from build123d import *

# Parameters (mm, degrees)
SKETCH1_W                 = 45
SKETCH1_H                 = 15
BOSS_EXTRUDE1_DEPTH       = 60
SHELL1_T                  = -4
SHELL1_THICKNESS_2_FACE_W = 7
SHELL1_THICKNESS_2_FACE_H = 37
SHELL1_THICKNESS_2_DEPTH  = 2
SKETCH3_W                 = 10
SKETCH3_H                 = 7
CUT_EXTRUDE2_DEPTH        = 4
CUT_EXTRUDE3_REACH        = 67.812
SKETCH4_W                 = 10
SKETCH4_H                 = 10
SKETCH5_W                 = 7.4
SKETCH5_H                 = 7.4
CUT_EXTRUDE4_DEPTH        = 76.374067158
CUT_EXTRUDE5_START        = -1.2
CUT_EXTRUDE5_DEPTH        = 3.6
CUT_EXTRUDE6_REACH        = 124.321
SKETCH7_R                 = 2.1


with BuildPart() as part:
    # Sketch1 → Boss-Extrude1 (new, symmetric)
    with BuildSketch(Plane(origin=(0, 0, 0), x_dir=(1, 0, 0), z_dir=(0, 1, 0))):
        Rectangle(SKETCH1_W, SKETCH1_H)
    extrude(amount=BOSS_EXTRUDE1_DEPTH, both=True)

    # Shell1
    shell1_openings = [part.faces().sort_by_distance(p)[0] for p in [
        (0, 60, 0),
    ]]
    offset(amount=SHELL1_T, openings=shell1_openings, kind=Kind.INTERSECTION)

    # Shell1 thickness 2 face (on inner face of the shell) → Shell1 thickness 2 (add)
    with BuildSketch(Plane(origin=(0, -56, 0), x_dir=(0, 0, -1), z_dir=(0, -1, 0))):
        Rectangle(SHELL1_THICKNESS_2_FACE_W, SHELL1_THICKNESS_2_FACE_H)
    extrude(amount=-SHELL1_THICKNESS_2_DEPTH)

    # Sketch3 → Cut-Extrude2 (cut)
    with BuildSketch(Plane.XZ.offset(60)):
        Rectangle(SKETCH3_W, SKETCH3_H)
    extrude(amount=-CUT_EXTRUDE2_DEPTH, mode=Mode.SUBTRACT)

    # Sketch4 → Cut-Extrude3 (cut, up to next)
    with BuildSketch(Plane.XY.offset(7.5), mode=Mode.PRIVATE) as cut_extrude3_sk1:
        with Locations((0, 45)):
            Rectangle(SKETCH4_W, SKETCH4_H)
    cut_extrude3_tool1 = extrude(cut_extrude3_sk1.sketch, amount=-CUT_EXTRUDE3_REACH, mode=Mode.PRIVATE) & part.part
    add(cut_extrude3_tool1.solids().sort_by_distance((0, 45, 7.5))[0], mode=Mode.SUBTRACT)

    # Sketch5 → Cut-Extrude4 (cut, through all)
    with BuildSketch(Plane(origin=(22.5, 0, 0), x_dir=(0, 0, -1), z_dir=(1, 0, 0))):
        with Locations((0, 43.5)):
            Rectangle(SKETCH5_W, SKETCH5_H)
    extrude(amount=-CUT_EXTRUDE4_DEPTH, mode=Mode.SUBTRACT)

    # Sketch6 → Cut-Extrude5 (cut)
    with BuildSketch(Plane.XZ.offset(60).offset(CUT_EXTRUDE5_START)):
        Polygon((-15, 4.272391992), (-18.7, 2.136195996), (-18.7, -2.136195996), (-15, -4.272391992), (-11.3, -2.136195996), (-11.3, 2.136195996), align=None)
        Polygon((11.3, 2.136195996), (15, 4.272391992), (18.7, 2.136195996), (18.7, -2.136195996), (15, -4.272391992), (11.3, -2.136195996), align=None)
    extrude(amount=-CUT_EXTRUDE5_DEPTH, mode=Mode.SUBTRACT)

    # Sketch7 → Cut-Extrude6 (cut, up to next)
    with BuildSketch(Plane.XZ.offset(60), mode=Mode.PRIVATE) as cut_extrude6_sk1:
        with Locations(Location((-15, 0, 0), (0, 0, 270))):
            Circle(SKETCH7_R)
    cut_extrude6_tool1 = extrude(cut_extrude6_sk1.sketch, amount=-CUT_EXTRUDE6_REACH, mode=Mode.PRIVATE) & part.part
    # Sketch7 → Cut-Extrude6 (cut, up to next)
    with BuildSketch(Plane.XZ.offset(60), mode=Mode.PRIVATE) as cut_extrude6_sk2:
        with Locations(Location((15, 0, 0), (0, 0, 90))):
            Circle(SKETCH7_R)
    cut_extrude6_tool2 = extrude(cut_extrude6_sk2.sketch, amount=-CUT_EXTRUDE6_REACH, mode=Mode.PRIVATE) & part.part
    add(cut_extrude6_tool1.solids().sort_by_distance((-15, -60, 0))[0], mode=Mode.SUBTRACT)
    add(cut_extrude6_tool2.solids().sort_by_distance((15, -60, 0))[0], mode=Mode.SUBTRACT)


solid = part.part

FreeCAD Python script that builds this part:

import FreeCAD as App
import Part
import Sketcher
Q = App.Units.Quantity


def faces_at(feature, points):
    """Names of the faces that lie closest to the given points."""
    faces = feature.Shape.Faces
    near = lambda p: min(range(len(faces)), key=lambda i: faces[i].distToShape(Part.Vertex(*p))[0])
    return sorted({f"Face{near(p) + 1}" for p in points})

doc = App.newDocument("Part")
body = doc.addObject("PartDesign::Body", "Body")

# Sketch on XZ plane
sketch1 = doc.addObject("Sketcher::SketchObject", "Sketch")
body.addObject(sketch1)
sketch1.AttachmentSupport = (doc.XZ_Plane, [""])
sketch1.MapMode = "FlatFace"
sketch1.addGeometry(Part.LineSegment(App.Vector(-22, -8, 0), App.Vector(-22, 8, 0)), False)
sketch1.addGeometry(Part.LineSegment(App.Vector(-22, 8, 0), App.Vector(22, 8, 0)), False)
sketch1.addGeometry(Part.LineSegment(App.Vector(22, 8, 0), App.Vector(22, -8, 0)), False)
sketch1.addGeometry(Part.LineSegment(App.Vector(22, -8, 0), App.Vector(-22, -8, 0)), False)
sketch1.addConstraint(Sketcher.Constraint("Coincident", 0, 2, 1, 1))
sketch1.addConstraint(Sketcher.Constraint("Coincident", 1, 2, 2, 1))
sketch1.addConstraint(Sketcher.Constraint("Coincident", 2, 2, 3, 1))
sketch1.addConstraint(Sketcher.Constraint("Coincident", 3, 2, 0, 1))
sketch1.addConstraint(Sketcher.Constraint("Vertical", 0))
sketch1.addConstraint(Sketcher.Constraint("Horizontal", 1))
sketch1.addConstraint(Sketcher.Constraint("Vertical", 2))
sketch1.addConstraint(Sketcher.Constraint("Horizontal", 3))
sketch1.addConstraint(Sketcher.Constraint("Symmetric", 0, 2, 2, 2, -1, 1))
sketch1.addConstraint(Sketcher.Constraint("DistanceX", 1, 1, 1, 2, Q("45 mm")))
sketch1.addConstraint(Sketcher.Constraint("DistanceY", 0, 1, 0, 2, Q("15 mm")))
pad1 = doc.addObject("PartDesign::Pad", "Pad")
body.addObject(pad1)
pad1.Profile = sketch1
pad1.Length = 120
pad1.Midplane = True
doc.recompute()

thickness = doc.addObject("PartDesign::Thickness", "Thickness")
body.addObject(thickness)
thickness.Base = (pad1, faces_at(pad1, [(0, 60, 0)]))
thickness.Value = 4
thickness.Reversed = True
thickness.Join = "Intersection"

# Sketch on XZ plane
sketch2 = doc.addObject("Sketcher::SketchObject", "Sketch001")
body.addObject(sketch2)
sketch2.AttachmentSupport = (doc.XZ_Plane, [""])
sketch2.MapMode = "FlatFace"
sketch2.AttachmentOffset = App.Placement(App.Vector(0, 0, 56), App.Rotation())
sketch2.addGeometry(Part.LineSegment(App.Vector(18, 4, 0), App.Vector(-18, 4, 0)), False)
sketch2.addGeometry(Part.LineSegment(App.Vector(-18, 4, 0), App.Vector(-18, -4, 0)), False)
sketch2.addGeometry(Part.LineSegment(App.Vector(-18, -4, 0), App.Vector(18, -4, 0)), False)
sketch2.addGeometry(Part.LineSegment(App.Vector(18, -4, 0), App.Vector(18, 4, 0)), False)
sketch2.addConstraint(Sketcher.Constraint("Coincident", 0, 2, 1, 1))
sketch2.addConstraint(Sketcher.Constraint("Coincident", 1, 2, 2, 1))
sketch2.addConstraint(Sketcher.Constraint("Coincident", 2, 2, 3, 1))
sketch2.addConstraint(Sketcher.Constraint("Coincident", 3, 2, 0, 1))
sketch2.addConstraint(Sketcher.Constraint("Horizontal", 0))
sketch2.addConstraint(Sketcher.Constraint("Vertical", 1))
sketch2.addConstraint(Sketcher.Constraint("Horizontal", 2))
sketch2.addConstraint(Sketcher.Constraint("Vertical", 3))
sketch2.addConstraint(Sketcher.Constraint("Symmetric", 0, 2, 2, 2, -1, 1))
sketch2.addConstraint(Sketcher.Constraint("DistanceX", 0, 2, 0, 1, Q("37 mm")))
sketch2.addConstraint(Sketcher.Constraint("DistanceY", 1, 2, 1, 1, Q("7 mm")))
pad2 = doc.addObject("PartDesign::Pad", "Pad001")
body.addObject(pad2)
pad2.Profile = sketch2
pad2.Length = 2
pad2.Reversed = True

# Sketch on XZ plane
sketch3 = doc.addObject("Sketcher::SketchObject", "Sketch002")
body.addObject(sketch3)
sketch3.AttachmentSupport = (doc.XZ_Plane, [""])
sketch3.MapMode = "FlatFace"
sketch3.AttachmentOffset = App.Placement(App.Vector(0, 0, 60), App.Rotation())
sketch3.addGeometry(Part.LineSegment(App.Vector(-5, 4, 0), App.Vector(-5, -4, 0)), False)
sketch3.addGeometry(Part.LineSegment(App.Vector(-5, -4, 0), App.Vector(5, -4, 0)), False)
sketch3.addGeometry(Part.LineSegment(App.Vector(5, -4, 0), App.Vector(5, 4, 0)), False)
sketch3.addGeometry(Part.LineSegment(App.Vector(5, 4, 0), App.Vector(-5, 4, 0)), False)
sketch3.addConstraint(Sketcher.Constraint("Coincident", 0, 2, 1, 1))
sketch3.addConstraint(Sketcher.Constraint("Coincident", 1, 2, 2, 1))
sketch3.addConstraint(Sketcher.Constraint("Coincident", 2, 2, 3, 1))
sketch3.addConstraint(Sketcher.Constraint("Coincident", 3, 2, 0, 1))
sketch3.addConstraint(Sketcher.Constraint("Vertical", 0))
sketch3.addConstraint(Sketcher.Constraint("Horizontal", 1))
sketch3.addConstraint(Sketcher.Constraint("Vertical", 2))
sketch3.addConstraint(Sketcher.Constraint("Horizontal", 3))
sketch3.addConstraint(Sketcher.Constraint("Symmetric", 0, 2, 2, 2, -1, 1))
sketch3.addConstraint(Sketcher.Constraint("DistanceX", 1, 1, 1, 2, Q("10 mm")))
sketch3.addConstraint(Sketcher.Constraint("DistanceY", 0, 2, 0, 1, Q("7 mm")))
pocket1 = doc.addObject("PartDesign::Pocket", "Pocket")
body.addObject(pocket1)
pocket1.Profile = sketch3
pocket1.Length = 4

# Sketch on XY plane
sketch4 = doc.addObject("Sketcher::SketchObject", "Sketch003")
body.addObject(sketch4)
sketch4.AttachmentSupport = (doc.XY_Plane, [""])
sketch4.MapMode = "FlatFace"
sketch4.AttachmentOffset = App.Placement(App.Vector(0, 0, 7.5), App.Rotation())
sketch4.addGeometry(Part.LineSegment(App.Vector(-5, 50, 0), App.Vector(-5, 40, 0)), False)
sketch4.addGeometry(Part.LineSegment(App.Vector(-5, 40, 0), App.Vector(5, 40, 0)), False)
sketch4.addGeometry(Part.LineSegment(App.Vector(5, 40, 0), App.Vector(5, 50, 0)), False)
sketch4.addGeometry(Part.LineSegment(App.Vector(5, 50, 0), App.Vector(-5, 50, 0)), False)
sketch4.addConstraint(Sketcher.Constraint("Coincident", 0, 2, 1, 1))
sketch4.addConstraint(Sketcher.Constraint("Coincident", 1, 2, 2, 1))
sketch4.addConstraint(Sketcher.Constraint("Coincident", 2, 2, 3, 1))
sketch4.addConstraint(Sketcher.Constraint("Coincident", 3, 2, 0, 1))
sketch4.addConstraint(Sketcher.Constraint("Vertical", 0))
sketch4.addConstraint(Sketcher.Constraint("Horizontal", 1))
sketch4.addConstraint(Sketcher.Constraint("Vertical", 2))
sketch4.addConstraint(Sketcher.Constraint("Horizontal", 3))
sketch4.addConstraint(Sketcher.Constraint("Equal", 3, 0))
sketch4.addConstraint(Sketcher.Constraint("DistanceX", 1, 1, 1, 2, Q("10 mm")))
sketch4.addConstraint(Sketcher.Constraint("DistanceX", 0, 2, -1, 1, Q("5 mm")))
sketch4.addConstraint(Sketcher.Constraint("DistanceY", -1, 1, 0, 2, Q("40 mm")))
pocket2 = doc.addObject("PartDesign::Pocket", "Pocket001")
body.addObject(pocket2)
pocket2.Profile = sketch4
pocket2.Type = "UpToFirst"

# Sketch on YZ plane
sketch5 = doc.addObject("Sketcher::SketchObject", "Sketch004")
body.addObject(sketch5)
sketch5.AttachmentSupport = (doc.YZ_Plane, [""])
sketch5.MapMode = "FlatFace"
sketch5.AttachmentOffset = App.Placement(App.Vector(0, 0, 22.5), App.Rotation())
sketch5.addGeometry(Part.LineSegment(App.Vector(47, 4, 0), App.Vector(40, 4, 0)), False)
sketch5.addGeometry(Part.LineSegment(App.Vector(40, 4, 0), App.Vector(40, -4, 0)), False)
sketch5.addGeometry(Part.LineSegment(App.Vector(40, -4, 0), App.Vector(47, -4, 0)), False)
sketch5.addGeometry(Part.LineSegment(App.Vector(47, -4, 0), App.Vector(47, 4, 0)), False)
sketch5.addConstraint(Sketcher.Constraint("Coincident", 0, 2, 1, 1))
sketch5.addConstraint(Sketcher.Constraint("Coincident", 1, 2, 2, 1))
sketch5.addConstraint(Sketcher.Constraint("Coincident", 2, 2, 3, 1))
sketch5.addConstraint(Sketcher.Constraint("Coincident", 3, 2, 0, 1))
sketch5.addConstraint(Sketcher.Constraint("Horizontal", 0))
sketch5.addConstraint(Sketcher.Constraint("Vertical", 1))
sketch5.addConstraint(Sketcher.Constraint("Horizontal", 2))
sketch5.addConstraint(Sketcher.Constraint("Vertical", 3))
sketch5.addConstraint(Sketcher.Constraint("Equal", 2, 1))
sketch5.addConstraint(Sketcher.Constraint("DistanceX", 0, 2, 0, 1, Q("7.4 mm")))
sketch5.addConstraint(Sketcher.Constraint("DistanceX", -1, 1, 0, 2, Q("39.8 mm")))
sketch5.addConstraint(Sketcher.Constraint("DistanceY", -1, 1, 0, 2, Q("3.7 mm")))
pocket3 = doc.addObject("PartDesign::Pocket", "Pocket002")
body.addObject(pocket3)
pocket3.Profile = sketch5
pocket3.Type = "ThroughAll"

# Sketch on XZ plane
sketch6 = doc.addObject("Sketcher::SketchObject", "Sketch005")
body.addObject(sketch6)
sketch6.AttachmentSupport = (doc.XZ_Plane, [""])
sketch6.MapMode = "FlatFace"
sketch6.AttachmentOffset = App.Placement(App.Vector(0, 0, 58.8), App.Rotation())
sketch6.addGeometry(Part.LineSegment(App.Vector(-15, 4.3, 0), App.Vector(-18.7, 2.1, 0)), False)
sketch6.addGeometry(Part.LineSegment(App.Vector(-18.7, 2.1, 0), App.Vector(-18.7, -2.1, 0)), False)
sketch6.addGeometry(Part.LineSegment(App.Vector(-18.7, -2.1, 0), App.Vector(-15, -4.3, 0)), False)
sketch6.addGeometry(Part.LineSegment(App.Vector(-15, -4.3, 0), App.Vector(-11.3, -2.1, 0)), False)
sketch6.addGeometry(Part.LineSegment(App.Vector(-11.3, -2.1, 0), App.Vector(-11.3, 2.1, 0)), False)
sketch6.addGeometry(Part.LineSegment(App.Vector(-11.3, 2.1, 0), App.Vector(-15, 4.3, 0)), False)
sketch6.addGeometry(Part.LineSegment(App.Vector(15, 4.3, 0), App.Vector(11.3, 2.1, 0)), False)
sketch6.addGeometry(Part.LineSegment(App.Vector(11.3, 2.1, 0), App.Vector(11.3, -2.1, 0)), False)
sketch6.addGeometry(Part.LineSegment(App.Vector(11.3, -2.1, 0), App.Vector(15, -4.3, 0)), False)
sketch6.addGeometry(Part.LineSegment(App.Vector(15, -4.3, 0), App.Vector(18.7, -2.1, 0)), False)
sketch6.addGeometry(Part.LineSegment(App.Vector(18.7, -2.1, 0), App.Vector(18.7, 2.1, 0)), False)
sketch6.addGeometry(Part.LineSegment(App.Vector(18.7, 2.1, 0), App.Vector(15, 4.3, 0)), False)
sketch6.addConstraint(Sketcher.Constraint("Coincident", 0, 2, 1, 1))
sketch6.addConstraint(Sketcher.Constraint("Coincident", 1, 2, 2, 1))
sketch6.addConstraint(Sketcher.Constraint("Coincident", 2, 2, 3, 1))
sketch6.addConstraint(Sketcher.Constraint("Coincident", 3, 2, 4, 1))
sketch6.addConstraint(Sketcher.Constraint("Coincident", 4, 2, 5, 1))
sketch6.addConstraint(Sketcher.Constraint("Coincident", 5, 2, 0, 1))
sketch6.addConstraint(Sketcher.Constraint("Coincident", 6, 2, 7, 1))
sketch6.addConstraint(Sketcher.Constraint("Coincident", 7, 2, 8, 1))
sketch6.addConstraint(Sketcher.Constraint("Coincident", 8, 2, 9, 1))
sketch6.addConstraint(Sketcher.Constraint("Coincident", 9, 2, 10, 1))
sketch6.addConstraint(Sketcher.Constraint("Coincident", 10, 2, 11, 1))
sketch6.addConstraint(Sketcher.Constraint("Coincident", 11, 2, 6, 1))
sketch6.addConstraint(Sketcher.Constraint("Vertical", 1))
sketch6.addConstraint(Sketcher.Constraint("Vertical", 4))
sketch6.addConstraint(Sketcher.Constraint("Vertical", 7))
sketch6.addConstraint(Sketcher.Constraint("Vertical", 10))
sketch6.addConstraint(Sketcher.Constraint("Symmetric", 3, 2, 6, 2, -1, 1))
sketch6.addConstraint(Sketcher.Constraint("Symmetric", 5, 2, 8, 2, -1, 1))
sketch6.addConstraint(Sketcher.Constraint("Symmetric", 0, 2, 9, 2, -1, 1))
sketch6.addConstraint(Sketcher.Constraint("Symmetric", 2, 2, 11, 2, -1, 1))
sketch6.addConstraint(Sketcher.Constraint("Symmetric", 2, 2, 8, 2, -2))
sketch6.addConstraint(Sketcher.Constraint("Parallel", 0, 3))
sketch6.addConstraint(Sketcher.Constraint("Parallel", 2, 5))
sketch6.addConstraint(Sketcher.Constraint("Parallel", 5, 8))
sketch6.addConstraint(Sketcher.Constraint("Parallel", 8, 11))
sketch6.addConstraint(Sketcher.Constraint("Horizontal", 1, 2, 3, 2))
sketch6.addConstraint(Sketcher.Constraint("Horizontal", 0, 2, 4, 2))
sketch6.addConstraint(Sketcher.Constraint("Angle", 0, Q("-150 deg")))
sketch6.addConstraint(Sketcher.Constraint("DistanceX", 2, 2, -1, 1, Q("15 mm")))
sketch6.addConstraint(Sketcher.Constraint("DistanceX", 0, 2, -1, 1, Q("18.7 mm")))
sketch6.addConstraint(Sketcher.Constraint("DistanceY", 1, 2, 1, 1, Q("4.272392 mm")))
pocket4 = doc.addObject("PartDesign::Pocket", "Pocket003")
body.addObject(pocket4)
pocket4.Profile = sketch6
pocket4.Length = 3.6

# Sketch on XZ plane
sketch7 = doc.addObject("Sketcher::SketchObject", "Sketch006")
body.addObject(sketch7)
sketch7.AttachmentSupport = (doc.XZ_Plane, [""])
sketch7.MapMode = "FlatFace"
sketch7.AttachmentOffset = App.Placement(App.Vector(0, 0, 60), App.Rotation())
sketch7.addGeometry(Part.Circle(App.Vector(-15, 0, 0), App.Vector(0, 0, 1), 2.1), False)
sketch7.addConstraint(Sketcher.Constraint("PointOnObject", 0, 3, -1))
sketch7.addConstraint(Sketcher.Constraint("Diameter", 0, Q("4.2 mm")))
sketch7.addConstraint(Sketcher.Constraint("DistanceX", 0, 3, -1, 1, Q("15 mm")))
pocket5 = doc.addObject("PartDesign::Pocket", "Pocket004")
body.addObject(pocket5)
pocket5.Profile = sketch7
pocket5.Type = "UpToFirst"

# Sketch on XZ plane
sketch8 = doc.addObject("Sketcher::SketchObject", "Sketch007")
body.addObject(sketch8)
sketch8.AttachmentSupport = (doc.XZ_Plane, [""])
sketch8.MapMode = "FlatFace"
sketch8.AttachmentOffset = App.Placement(App.Vector(0, 0, 60), App.Rotation())
sketch8.addGeometry(Part.Circle(App.Vector(15, 0, 0), App.Vector(0, 0, 1), 2.1), False)
sketch8.addConstraint(Sketcher.Constraint("PointOnObject", 0, 3, -1))
sketch8.addConstraint(Sketcher.Constraint("Diameter", 0, Q("4.2 mm")))
sketch8.addConstraint(Sketcher.Constraint("DistanceX", -1, 1, 0, 3, Q("15 mm")))
pocket6 = doc.addObject("PartDesign::Pocket", "Pocket005")
body.addObject(pocket6)
pocket6.Profile = sketch8
pocket6.Type = "UpToFirst"

doc.recompute()
